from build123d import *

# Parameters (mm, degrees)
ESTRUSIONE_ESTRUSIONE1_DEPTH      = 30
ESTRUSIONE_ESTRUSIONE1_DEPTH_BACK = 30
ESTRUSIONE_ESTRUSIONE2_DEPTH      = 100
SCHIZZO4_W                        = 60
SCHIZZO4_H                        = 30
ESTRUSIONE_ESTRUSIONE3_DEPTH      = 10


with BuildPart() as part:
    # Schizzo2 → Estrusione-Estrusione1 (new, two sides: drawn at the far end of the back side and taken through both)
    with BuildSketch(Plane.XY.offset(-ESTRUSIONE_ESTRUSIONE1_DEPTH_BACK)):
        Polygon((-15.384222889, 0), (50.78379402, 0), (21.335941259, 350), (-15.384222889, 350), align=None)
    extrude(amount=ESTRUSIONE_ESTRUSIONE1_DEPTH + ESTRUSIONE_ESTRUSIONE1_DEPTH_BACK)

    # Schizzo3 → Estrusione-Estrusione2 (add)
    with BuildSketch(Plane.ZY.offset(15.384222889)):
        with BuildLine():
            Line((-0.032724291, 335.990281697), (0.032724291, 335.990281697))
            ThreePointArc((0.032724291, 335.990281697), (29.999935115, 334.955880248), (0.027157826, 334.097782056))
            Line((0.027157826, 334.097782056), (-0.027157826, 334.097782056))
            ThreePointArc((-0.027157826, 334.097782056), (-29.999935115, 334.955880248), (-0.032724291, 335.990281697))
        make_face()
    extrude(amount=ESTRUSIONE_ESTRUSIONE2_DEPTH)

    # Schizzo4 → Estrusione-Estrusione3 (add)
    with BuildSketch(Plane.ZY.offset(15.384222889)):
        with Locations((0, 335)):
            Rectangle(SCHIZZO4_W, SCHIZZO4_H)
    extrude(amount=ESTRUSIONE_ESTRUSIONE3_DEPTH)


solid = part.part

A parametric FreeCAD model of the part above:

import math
import FreeCAD as App
import Part
import Sketcher

doc = App.newDocument("Part")
body = doc.addObject("PartDesign::Body", "Body")

# Sketch on XY plane
sketch1 = body.newObject("Sketcher::SketchObject", "Sketch")
sketch1.AttachmentSupport = (doc.getObject("XY_Plane"), [""])
sketch1.MapMode = "FlatFace"
sketch1.addGeometry(Part.LineSegment(App.Vector(-15, 0, 0), App.Vector(51, 0, 0)), False)
sketch1.addGeometry(Part.LineSegment(App.Vector(51, 0, 0), App.Vector(21, 350, 0)), False)
sketch1.addGeometry(Part.LineSegment(App.Vector(21, 350, 0), App.Vector(-15, 350, 0)), False)
sketch1.addGeometry(Part.LineSegment(App.Vector(-15, 350, 0), App.Vector(-15, 0, 0)), False)
sketch1.addConstraint(Sketcher.Constraint("Coincident", 0, 2, 1, 1))
sketch1.addConstraint(Sketcher.Constraint("Coincident", 1, 2, 2, 1))
sketch1.addConstraint(Sketcher.Constraint("Coincident", 2, 2, 3, 1))
sketch1.addConstraint(Sketcher.Constraint("Coincident", 3, 2, 0, 1))
sketch1.addConstraint(Sketcher.Constraint("Horizontal", 0))
sketch1.addConstraint(Sketcher.Constraint("Horizontal", 2))
sketch1.addConstraint(Sketcher.Constraint("Vertical", 3))
sketch1.addConstraint(Sketcher.Constraint("PointOnObject", 0, 2, -1))
sketch1.addConstraint(Sketcher.Constraint("DistanceY", 3, 2, 3, 1, 350.0))
sketch1.addConstraint(Sketcher.Constraint("Distance", 1, 351.236638))
sketch1.addConstraint(Sketcher.Constraint("DistanceX", 0, 1, 0, 2, 66.168017))
sketch1.addConstraint(Sketcher.Constraint("DistanceX", -1, 1, 1, 2, 21.335941))
pad1 = body.newObject("PartDesign::Pad", "Pad")
pad1.Profile = sketch1
pad1.Type = "TwoLengths"
pad1.Length = 30
pad1.Length2 = 30

# Sketch on YZ plane
sketch2 = body.newObject("Sketcher::SketchObject", "Sketch001")
sketch2.AttachmentSupport = (doc.getObject("YZ_Plane"), [""])
sketch2.MapMode = "FlatFace"
sketch2.AttachmentOffset = App.Placement(App.Vector(0, 0, -15.384223), App.Rotation())
sketch2.addGeometry(Part.LineSegment(App.Vector(335.99, 0.03, 0), App.Vector(335.99, -0.03, 0)), False)
sketch2.addGeometry(Part.ArcOfCircle(Part.Circle(App.Vector(335, -15, 0), App.Vector(0, 0, 1), 15), math.radians(93), math.radians(446)), False)
sketch2.addGeometry(Part.LineSegment(App.Vector(334.1, -0.03, 0), App.Vector(334.1, 0.03, 0)), False)
sketch2.addGeometry(Part.ArcOfCircle(Part.Circle(App.Vector(335, 15, 0), App.Vector(0, 0, 1), 15), math.radians(-86), math.radians(267)), False)
sketch2.addConstraint(Sketcher.Constraint("Coincident", 0, 2, 1, 2))
sketch2.addConstraint(Sketcher.Constraint("Coincident", 1, 1, 2, 1))
sketch2.addConstraint(Sketcher.Constraint("Coincident", 2, 2, 3, 2))
sketch2.addConstraint(Sketcher.Constraint("Coincident", 3, 1, 0, 1))
sketch2.addConstraint(Sketcher.Constraint("Vertical", 0))
sketch2.addConstraint(Sketcher.Constraint("Vertical", 2))
sketch2.addConstraint(Sketcher.Constraint("Equal", 1, 3))
sketch2.addConstraint(Sketcher.Constraint("Symmetric", 1, 3, 3, 3, -1))
sketch2.addConstraint(Sketcher.Constraint("Radius", 1, 15.0))
sketch2.addConstraint(Sketcher.Constraint("DistanceX", -1, 1, 1, 3, 335.0))
sketch2.addConstraint(Sketcher.Constraint("DistanceY", 1, 3, -1, 1, 15.0))
sketch2.addConstraint(Sketcher.Constraint("DistanceY", 0, 2, 0, 1, 0.065449))
sketch2.addConstraint(Sketcher.Constraint("DistanceX", 1, 1, 0, 2, 1.8925))
pad2 = body.newObject("PartDesign::Pad", "Pad001")
pad2.Profile = sketch2
pad2.Length = 100
pad2.Reversed = True

# Sketch on YZ plane
sketch3 = body.newObject("Sketcher::SketchObject", "Sketch002")
sketch3.AttachmentSupport = (doc.getObject("YZ_Plane"), [""])
sketch3.MapMode = "FlatFace"
sketch3.AttachmentOffset = App.Placement(App.Vector(0, 0, -15.384223), App.Rotation())
sketch3.addGeometry(Part.LineSegment(App.Vector(350, -30, 0), App.Vector(320, -30, 0)), False)
sketch3.addGeometry(Part.LineSegment(App.Vector(320, -30, 0), App.Vector(320, 30, 0)), False)
sketch3.addGeometry(Part.LineSegment(App.Vector(320, 30, 0), App.Vector(350, 30, 0)), False)
sketch3.addGeometry(Part.LineSegment(App.Vector(350, 30, 0), App.Vector(350, -30, 0)), False)
sketch3.addConstraint(Sketcher.Constraint("Coincident", 0, 2, 1, 1))
sketch3.addConstraint(Sketcher.Constraint("Coincident", 1, 2, 2, 1))
sketch3.addConstraint(Sketcher.Constraint("Coincident", 2, 2, 3, 1))
sketch3.addConstraint(Sketcher.Constraint("Coincident", 3, 2, 0, 1))
sketch3.addConstraint(Sketcher.Constraint("Horizontal", 0))
sketch3.addConstraint(Sketcher.Constraint("Vertical", 1))
sketch3.addConstraint(Sketcher.Constraint("Horizontal", 2))
sketch3.addConstraint(Sketcher.Constraint("Vertical", 3))
sketch3.addConstraint(Sketcher.Constraint("DistanceX", 0, 2, 0, 1, 30.0))
sketch3.addConstraint(Sketcher.Constraint("DistanceY", 1, 1, 1, 2, 60.0))
sketch3.addConstraint(Sketcher.Constraint("DistanceX", -1, 1, 0, 2, 320.0))
sketch3.addConstraint(Sketcher.Constraint("DistanceY", 0, 2, -1, 1, 30.0))
pad3 = body.newObject("PartDesign::Pad", "Pad002")
pad3.Profile = sketch3
pad3.Length = 10
pad3.Reversed = True

doc.recompute()
